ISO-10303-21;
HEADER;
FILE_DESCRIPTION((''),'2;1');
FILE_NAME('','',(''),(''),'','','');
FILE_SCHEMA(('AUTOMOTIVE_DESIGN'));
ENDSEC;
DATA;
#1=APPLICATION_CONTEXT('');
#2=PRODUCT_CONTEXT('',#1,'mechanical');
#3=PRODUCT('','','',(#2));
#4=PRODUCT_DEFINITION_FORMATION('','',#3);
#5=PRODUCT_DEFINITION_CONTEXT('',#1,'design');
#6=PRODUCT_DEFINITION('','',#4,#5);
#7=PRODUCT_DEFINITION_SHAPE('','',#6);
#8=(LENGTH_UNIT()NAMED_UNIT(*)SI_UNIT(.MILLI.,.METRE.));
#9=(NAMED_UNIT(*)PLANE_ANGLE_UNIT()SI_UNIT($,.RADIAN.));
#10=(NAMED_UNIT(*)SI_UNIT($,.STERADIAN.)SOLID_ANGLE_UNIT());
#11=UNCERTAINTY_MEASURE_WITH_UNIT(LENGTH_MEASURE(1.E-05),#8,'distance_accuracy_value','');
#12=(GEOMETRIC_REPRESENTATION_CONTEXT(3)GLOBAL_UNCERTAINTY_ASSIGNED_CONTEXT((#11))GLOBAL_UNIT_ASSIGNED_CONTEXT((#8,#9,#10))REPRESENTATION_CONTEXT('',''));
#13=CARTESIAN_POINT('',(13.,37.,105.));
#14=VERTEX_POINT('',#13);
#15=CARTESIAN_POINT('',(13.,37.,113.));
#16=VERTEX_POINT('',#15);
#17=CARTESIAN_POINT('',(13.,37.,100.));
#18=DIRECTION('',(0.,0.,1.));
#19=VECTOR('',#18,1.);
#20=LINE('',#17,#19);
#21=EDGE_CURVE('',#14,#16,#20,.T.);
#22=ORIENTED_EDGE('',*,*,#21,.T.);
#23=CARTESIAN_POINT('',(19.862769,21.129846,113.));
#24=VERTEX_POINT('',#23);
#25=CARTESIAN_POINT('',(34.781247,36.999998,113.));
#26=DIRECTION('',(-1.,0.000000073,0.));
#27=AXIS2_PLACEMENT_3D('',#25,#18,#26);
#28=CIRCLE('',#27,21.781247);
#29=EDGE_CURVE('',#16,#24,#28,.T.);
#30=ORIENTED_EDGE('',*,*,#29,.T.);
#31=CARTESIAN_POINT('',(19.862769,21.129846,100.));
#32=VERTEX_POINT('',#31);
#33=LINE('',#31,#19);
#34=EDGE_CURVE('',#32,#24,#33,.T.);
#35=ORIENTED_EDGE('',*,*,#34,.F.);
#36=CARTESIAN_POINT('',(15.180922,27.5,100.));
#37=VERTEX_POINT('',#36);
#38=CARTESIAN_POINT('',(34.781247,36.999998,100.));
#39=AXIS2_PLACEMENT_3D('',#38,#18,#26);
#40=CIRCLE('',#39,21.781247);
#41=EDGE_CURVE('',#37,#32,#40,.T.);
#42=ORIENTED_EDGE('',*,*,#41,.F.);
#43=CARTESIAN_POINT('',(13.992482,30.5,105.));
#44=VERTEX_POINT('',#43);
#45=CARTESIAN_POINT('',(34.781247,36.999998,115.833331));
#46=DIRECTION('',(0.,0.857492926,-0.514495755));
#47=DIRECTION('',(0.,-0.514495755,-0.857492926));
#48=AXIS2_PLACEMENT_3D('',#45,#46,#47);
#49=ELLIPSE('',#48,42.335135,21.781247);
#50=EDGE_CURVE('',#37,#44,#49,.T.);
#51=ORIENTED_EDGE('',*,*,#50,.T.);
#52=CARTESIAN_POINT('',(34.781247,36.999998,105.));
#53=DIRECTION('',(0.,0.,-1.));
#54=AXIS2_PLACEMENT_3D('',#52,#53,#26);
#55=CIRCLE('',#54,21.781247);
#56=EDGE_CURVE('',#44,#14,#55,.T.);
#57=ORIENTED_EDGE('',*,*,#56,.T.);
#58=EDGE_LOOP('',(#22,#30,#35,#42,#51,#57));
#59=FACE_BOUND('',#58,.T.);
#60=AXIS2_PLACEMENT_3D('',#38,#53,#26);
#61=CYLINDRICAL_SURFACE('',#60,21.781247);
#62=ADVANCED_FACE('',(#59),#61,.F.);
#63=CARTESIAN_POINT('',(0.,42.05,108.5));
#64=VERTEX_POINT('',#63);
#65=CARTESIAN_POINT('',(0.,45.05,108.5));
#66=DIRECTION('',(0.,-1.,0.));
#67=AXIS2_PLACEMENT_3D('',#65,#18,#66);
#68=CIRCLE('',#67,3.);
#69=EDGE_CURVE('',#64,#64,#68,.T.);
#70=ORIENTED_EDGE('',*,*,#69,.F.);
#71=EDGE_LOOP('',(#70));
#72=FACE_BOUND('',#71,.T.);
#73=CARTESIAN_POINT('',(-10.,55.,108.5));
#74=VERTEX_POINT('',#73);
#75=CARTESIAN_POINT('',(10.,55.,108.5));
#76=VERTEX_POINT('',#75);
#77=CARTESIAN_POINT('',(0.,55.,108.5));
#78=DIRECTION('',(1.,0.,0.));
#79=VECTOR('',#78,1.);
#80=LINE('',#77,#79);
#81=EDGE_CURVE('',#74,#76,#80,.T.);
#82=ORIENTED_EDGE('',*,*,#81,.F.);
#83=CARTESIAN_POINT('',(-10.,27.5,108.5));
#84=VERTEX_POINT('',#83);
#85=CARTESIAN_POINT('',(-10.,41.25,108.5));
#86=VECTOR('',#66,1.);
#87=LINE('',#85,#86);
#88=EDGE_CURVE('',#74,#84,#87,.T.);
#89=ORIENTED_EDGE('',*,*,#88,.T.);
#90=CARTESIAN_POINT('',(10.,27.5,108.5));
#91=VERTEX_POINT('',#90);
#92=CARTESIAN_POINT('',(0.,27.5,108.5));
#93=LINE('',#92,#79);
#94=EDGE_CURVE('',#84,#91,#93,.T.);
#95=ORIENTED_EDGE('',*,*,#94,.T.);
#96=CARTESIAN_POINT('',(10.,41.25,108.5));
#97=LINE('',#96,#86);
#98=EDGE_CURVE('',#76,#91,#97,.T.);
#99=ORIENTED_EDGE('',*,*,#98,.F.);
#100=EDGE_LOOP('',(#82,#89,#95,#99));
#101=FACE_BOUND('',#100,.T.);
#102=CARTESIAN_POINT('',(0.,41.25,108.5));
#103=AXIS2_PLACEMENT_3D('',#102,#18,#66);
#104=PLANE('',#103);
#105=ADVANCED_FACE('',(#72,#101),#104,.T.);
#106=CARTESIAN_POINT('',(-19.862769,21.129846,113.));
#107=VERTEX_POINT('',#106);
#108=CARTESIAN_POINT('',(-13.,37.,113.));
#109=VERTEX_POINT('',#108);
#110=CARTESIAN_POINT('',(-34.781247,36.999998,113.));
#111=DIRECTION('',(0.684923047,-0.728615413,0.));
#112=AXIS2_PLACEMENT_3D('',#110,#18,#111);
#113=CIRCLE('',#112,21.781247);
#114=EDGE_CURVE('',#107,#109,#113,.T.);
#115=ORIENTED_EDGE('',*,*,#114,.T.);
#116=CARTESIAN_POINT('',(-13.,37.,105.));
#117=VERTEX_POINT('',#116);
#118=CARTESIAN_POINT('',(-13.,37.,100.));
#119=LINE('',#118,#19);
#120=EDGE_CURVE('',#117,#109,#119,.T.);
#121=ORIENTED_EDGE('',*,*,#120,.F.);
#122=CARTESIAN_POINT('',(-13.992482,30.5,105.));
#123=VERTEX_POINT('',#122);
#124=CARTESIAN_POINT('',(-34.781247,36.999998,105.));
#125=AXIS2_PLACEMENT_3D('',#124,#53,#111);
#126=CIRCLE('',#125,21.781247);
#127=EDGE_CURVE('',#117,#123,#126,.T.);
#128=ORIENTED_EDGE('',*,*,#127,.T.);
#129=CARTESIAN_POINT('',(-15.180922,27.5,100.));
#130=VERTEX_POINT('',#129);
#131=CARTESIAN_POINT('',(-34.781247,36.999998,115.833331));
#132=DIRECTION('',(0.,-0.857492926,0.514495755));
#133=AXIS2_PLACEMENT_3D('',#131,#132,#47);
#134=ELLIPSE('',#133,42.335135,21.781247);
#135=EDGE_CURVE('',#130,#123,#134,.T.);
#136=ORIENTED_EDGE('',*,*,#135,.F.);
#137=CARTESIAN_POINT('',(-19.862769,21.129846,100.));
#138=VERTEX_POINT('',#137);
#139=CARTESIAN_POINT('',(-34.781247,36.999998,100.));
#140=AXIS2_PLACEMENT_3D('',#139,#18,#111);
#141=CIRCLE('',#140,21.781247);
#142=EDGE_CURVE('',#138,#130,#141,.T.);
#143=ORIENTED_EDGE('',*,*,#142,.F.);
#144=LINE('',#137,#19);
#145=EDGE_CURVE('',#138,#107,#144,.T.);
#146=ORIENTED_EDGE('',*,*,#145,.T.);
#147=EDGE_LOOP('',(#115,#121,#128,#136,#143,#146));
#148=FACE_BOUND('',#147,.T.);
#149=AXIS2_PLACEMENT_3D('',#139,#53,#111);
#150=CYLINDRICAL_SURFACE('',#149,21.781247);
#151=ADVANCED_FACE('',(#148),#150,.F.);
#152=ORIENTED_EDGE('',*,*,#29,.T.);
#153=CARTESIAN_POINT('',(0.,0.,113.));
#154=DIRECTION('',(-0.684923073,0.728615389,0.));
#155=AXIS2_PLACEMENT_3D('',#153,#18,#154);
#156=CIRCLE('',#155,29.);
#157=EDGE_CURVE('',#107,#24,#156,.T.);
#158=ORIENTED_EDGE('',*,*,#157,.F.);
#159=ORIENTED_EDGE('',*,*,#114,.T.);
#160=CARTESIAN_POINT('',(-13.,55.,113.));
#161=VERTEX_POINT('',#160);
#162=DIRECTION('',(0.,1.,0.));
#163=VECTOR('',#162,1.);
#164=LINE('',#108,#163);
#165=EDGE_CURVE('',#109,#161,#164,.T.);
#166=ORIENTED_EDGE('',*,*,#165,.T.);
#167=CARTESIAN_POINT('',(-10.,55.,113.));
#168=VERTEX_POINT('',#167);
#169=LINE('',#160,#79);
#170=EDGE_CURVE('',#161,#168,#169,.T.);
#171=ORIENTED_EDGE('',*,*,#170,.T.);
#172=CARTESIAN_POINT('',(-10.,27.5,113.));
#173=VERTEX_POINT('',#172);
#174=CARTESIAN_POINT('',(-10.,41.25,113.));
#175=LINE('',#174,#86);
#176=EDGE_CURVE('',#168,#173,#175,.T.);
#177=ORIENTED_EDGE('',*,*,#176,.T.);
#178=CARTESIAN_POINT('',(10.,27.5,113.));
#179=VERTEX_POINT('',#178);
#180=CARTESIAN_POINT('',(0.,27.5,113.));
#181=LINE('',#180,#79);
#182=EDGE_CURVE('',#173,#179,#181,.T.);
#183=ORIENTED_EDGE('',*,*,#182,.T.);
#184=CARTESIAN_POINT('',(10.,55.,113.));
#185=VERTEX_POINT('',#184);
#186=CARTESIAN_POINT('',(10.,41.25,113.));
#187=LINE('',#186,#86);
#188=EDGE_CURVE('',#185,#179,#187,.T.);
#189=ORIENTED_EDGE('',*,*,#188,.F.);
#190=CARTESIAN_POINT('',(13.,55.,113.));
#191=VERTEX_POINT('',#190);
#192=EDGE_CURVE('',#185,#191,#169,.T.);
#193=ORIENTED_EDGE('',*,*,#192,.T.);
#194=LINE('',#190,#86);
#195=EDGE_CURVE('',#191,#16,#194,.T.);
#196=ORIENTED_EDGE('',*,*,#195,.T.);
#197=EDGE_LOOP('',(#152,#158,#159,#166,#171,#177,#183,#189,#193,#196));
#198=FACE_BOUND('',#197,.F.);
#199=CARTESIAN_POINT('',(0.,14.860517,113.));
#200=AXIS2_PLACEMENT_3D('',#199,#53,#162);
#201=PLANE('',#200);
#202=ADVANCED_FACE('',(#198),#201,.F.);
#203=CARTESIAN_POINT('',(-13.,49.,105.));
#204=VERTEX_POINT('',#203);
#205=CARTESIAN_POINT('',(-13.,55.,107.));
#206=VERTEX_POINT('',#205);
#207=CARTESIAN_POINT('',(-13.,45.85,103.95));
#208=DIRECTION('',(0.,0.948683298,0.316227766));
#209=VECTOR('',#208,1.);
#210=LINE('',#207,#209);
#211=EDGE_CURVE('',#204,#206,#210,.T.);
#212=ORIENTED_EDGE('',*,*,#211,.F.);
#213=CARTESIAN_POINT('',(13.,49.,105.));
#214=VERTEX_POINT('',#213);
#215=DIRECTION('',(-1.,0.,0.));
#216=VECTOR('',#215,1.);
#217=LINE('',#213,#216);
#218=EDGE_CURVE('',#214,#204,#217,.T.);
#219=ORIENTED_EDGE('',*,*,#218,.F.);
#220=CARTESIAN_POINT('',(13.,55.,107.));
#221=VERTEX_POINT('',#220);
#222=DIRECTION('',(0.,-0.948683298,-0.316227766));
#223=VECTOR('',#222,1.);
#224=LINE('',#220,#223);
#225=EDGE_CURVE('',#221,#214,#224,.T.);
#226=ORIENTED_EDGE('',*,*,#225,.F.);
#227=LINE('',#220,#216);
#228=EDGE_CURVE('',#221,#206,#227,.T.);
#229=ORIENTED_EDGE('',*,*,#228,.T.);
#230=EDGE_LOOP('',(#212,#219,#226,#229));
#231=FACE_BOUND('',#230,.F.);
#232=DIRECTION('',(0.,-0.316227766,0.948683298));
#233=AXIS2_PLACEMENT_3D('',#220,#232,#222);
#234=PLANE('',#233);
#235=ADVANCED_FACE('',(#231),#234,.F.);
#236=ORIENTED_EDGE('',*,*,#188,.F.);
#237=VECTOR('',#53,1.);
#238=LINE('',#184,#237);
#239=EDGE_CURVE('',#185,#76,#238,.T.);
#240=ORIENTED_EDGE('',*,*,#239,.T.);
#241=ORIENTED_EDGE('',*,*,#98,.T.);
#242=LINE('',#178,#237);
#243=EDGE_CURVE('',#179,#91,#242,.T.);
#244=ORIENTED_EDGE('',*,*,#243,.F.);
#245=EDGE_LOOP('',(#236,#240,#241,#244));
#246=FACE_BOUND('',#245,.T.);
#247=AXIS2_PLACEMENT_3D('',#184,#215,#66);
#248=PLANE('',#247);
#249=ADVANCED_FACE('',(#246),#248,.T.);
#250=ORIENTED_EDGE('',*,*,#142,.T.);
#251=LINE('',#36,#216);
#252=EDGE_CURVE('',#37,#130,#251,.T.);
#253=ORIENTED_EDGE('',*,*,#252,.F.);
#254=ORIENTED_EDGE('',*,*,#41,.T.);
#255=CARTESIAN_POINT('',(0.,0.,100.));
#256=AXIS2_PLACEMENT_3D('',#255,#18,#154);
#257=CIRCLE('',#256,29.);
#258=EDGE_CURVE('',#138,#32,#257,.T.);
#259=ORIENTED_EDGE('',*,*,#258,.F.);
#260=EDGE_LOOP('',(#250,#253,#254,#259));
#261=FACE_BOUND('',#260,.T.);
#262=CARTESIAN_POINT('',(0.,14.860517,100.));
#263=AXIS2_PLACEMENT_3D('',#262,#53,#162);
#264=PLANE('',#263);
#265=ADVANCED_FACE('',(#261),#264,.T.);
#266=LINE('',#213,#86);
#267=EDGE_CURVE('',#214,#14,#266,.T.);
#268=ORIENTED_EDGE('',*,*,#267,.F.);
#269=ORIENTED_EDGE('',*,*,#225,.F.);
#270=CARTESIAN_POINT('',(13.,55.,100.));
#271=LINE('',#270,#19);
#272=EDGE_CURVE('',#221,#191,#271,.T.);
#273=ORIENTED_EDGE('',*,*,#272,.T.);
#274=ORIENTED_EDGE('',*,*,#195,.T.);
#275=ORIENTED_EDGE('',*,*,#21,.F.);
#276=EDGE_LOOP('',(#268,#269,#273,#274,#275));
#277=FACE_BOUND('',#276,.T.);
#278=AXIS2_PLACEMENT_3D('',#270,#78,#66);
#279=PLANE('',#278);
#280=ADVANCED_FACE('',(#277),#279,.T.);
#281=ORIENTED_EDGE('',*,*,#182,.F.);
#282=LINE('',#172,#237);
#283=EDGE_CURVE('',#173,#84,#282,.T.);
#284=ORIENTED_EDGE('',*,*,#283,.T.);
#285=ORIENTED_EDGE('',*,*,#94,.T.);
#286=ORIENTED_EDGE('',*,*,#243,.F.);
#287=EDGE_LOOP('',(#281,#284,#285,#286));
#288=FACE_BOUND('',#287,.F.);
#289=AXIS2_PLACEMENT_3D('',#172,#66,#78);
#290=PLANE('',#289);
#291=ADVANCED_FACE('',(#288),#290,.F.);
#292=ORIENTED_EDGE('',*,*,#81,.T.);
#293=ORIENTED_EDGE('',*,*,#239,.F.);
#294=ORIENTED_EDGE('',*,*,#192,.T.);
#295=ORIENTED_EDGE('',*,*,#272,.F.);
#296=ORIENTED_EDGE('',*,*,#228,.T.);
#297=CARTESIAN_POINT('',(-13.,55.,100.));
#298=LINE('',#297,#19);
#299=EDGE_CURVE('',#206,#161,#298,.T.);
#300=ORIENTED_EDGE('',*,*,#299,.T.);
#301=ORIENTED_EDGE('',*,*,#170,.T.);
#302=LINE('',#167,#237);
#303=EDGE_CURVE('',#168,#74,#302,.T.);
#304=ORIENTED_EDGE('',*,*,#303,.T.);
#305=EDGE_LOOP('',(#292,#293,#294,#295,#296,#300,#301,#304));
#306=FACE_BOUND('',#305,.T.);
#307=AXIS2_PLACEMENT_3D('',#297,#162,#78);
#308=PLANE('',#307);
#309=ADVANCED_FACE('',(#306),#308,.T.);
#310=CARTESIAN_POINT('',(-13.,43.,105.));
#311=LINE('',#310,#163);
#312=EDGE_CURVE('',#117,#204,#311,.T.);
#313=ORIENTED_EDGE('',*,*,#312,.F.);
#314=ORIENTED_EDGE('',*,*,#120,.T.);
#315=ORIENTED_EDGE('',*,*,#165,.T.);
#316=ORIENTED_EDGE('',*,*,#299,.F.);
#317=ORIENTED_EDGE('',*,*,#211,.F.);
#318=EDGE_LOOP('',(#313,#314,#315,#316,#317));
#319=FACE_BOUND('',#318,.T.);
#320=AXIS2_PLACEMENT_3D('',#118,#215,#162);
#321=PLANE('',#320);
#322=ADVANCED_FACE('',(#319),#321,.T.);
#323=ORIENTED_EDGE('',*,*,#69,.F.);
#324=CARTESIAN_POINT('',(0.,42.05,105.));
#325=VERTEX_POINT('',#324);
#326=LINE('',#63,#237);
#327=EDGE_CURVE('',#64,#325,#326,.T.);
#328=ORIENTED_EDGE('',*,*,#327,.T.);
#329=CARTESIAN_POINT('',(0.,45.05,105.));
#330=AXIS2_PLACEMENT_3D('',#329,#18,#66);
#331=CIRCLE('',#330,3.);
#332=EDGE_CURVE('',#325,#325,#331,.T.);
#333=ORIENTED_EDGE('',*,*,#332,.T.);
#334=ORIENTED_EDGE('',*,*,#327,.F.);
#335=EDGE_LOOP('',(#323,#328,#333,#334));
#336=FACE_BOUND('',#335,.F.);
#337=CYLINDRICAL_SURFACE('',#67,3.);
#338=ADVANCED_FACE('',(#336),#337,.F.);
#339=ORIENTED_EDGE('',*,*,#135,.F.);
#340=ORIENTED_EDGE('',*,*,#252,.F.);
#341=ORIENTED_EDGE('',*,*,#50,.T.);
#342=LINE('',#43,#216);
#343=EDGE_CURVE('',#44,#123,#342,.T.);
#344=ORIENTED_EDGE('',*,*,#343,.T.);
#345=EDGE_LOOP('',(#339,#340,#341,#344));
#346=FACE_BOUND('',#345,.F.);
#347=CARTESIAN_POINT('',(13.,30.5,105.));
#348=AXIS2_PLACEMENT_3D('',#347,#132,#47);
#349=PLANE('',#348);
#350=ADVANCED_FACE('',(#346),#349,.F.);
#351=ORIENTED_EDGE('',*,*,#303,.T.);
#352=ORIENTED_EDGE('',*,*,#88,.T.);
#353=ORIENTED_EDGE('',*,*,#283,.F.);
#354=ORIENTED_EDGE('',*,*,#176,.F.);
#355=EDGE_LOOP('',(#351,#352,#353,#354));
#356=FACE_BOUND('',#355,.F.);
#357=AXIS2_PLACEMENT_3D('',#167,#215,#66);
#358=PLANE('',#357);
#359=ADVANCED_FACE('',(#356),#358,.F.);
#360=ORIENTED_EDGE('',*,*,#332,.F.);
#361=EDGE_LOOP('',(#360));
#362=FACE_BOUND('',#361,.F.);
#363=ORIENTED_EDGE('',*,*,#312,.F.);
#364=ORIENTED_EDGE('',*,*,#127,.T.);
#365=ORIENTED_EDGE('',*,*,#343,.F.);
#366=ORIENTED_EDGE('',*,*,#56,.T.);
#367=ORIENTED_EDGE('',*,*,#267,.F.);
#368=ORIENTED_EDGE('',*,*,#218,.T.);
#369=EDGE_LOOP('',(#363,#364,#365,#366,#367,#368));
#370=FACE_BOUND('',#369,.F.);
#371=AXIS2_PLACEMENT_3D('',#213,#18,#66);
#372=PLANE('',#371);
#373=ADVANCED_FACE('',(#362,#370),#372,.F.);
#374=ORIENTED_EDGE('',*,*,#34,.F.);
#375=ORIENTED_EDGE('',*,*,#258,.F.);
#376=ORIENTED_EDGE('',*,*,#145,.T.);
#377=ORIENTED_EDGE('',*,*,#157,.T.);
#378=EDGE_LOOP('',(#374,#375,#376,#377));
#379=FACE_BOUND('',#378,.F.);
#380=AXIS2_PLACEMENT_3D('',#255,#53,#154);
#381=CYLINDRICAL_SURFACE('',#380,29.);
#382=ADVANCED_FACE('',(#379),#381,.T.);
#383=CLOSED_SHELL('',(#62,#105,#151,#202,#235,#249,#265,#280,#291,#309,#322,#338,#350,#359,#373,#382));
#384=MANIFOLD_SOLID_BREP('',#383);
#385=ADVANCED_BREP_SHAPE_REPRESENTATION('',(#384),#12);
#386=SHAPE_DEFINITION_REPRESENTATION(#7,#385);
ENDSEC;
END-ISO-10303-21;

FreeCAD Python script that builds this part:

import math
import FreeCAD as App
import Part
import Sketcher


def add_polygon(sketch, points):
    """Adds a closed chain of lines whose ends are joined by coincident constraints."""
    first, n = sketch.GeometryCount, len(points)
    for a, b in zip(points, points[1:] + points[:1]):
        sketch.addGeometry(Part.LineSegment(App.Vector(*a, 0), App.Vector(*b, 0)), False)
    for i in range(n):
        sketch.addConstraint(Sketcher.Constraint("Coincident", first + i, 2, first + (i + 1) % n, 1))

doc = App.newDocument("Part")
params = doc.addObject("Spreadsheet::Sheet", "Params")
for row, (alias, value) in enumerate([
    ("sketch1_radius", "29 mm"),
    ("sketch1_width", "26 mm"),
    ("sketch1_height", "18 mm"),
    ("pad1_length", "13 mm"),
    ("sketch2_width", "20 mm"),
    ("sketch2_height", "27.5 mm"),
    ("pocket1_length", "4.5 mm"),
    ("sketch3_diameter", "6 mm"),
    ("pocket2_length", "25 mm"),
    ("sketch4_height", "7 mm"),
    ("sketch4_width", "18.5 mm"),
    ("sketch4_width2", "27.5 mm"),
], start=1):
    params.set(f"A{row}", alias)
    params.set(f"B{row}", "=" + value)
    params.setAlias(f"B{row}", alias)

body = doc.addObject("PartDesign::Body", "Body")

sketch1 = doc.addObject("Sketcher::SketchObject", "Sketch")
body.addObject(sketch1)
sketch1.AttachmentSupport = (doc.XY_Plane, [""])
sketch1.MapMode = "FlatFace"
sketch1.AttachmentOffset = App.Placement(App.Vector(0, 0, 100), App.Rotation())
sketch1.addGeometry(Part.LineSegment(App.Vector(13, 55, 0), App.Vector(-13, 55, 0)), False)
sketch1.addGeometry(Part.LineSegment(App.Vector(-13, 55, 0), App.Vector(-13, 37, 0)), False)
sketch1.addGeometry(Part.ArcOfCircle(Part.Circle(App.Vector(-35, 37, 0), App.Vector(0, 0, 1), 22), math.radians(-47), math.radians(0)), False)
sketch1.addGeometry(Part.ArcOfCircle(Part.Circle(App.Vector(0, 0, 0), App.Vector(0, 0, 1), 29), math.radians(133), math.radians(407)), False)
sketch1.addGeometry(Part.ArcOfCircle(Part.Circle(App.Vector(35, 37, 0), App.Vector(0, 0, 1), 22), math.radians(180), math.radians(227)), False)
sketch1.addGeometry(Part.LineSegment(App.Vector(13, 37, 0), App.Vector(13, 55, 0)), False)
sketch1.addConstraint(Sketcher.Constraint("Coincident", 0, 2, 1, 1))
sketch1.addConstraint(Sketcher.Constraint("Tangent", 1, 2, 2, 2))
sketch1.addConstraint(Sketcher.Constraint("Tangent", 2, 1, 3, 1))
sketch1.addConstraint(Sketcher.Constraint("Tangent", 3, 2, 4, 2))
sketch1.addConstraint(Sketcher.Constraint("Tangent", 4, 1, 5, 1))
sketch1.addConstraint(Sketcher.Constraint("Coincident", 5, 2, 0, 1))
sketch1.addConstraint(Sketcher.Constraint("Horizontal", 0))
sketch1.addConstraint(Sketcher.Constraint("Vertical", 1))
sketch1.addConstraint(Sketcher.Constraint("Vertical", 5))
sketch1.addConstraint(Sketcher.Constraint("Coincident", 3, 3, -1, 1))
sketch1.addConstraint(Sketcher.Constraint("Equal", 2, 4))
sketch1.addConstraint(Sketcher.Constraint("Horizontal", 2, 3, 4, 3))
sketch1.addConstraint(Sketcher.Constraint("Radius", 3, 29.0))
sketch1.addConstraint(Sketcher.Constraint("DistanceX", 0, 2, 0, 1, 26.0))
sketch1.addConstraint(Sketcher.Constraint("DistanceY", 1, 2, 1, 1, 18.0))
sketch1.addConstraint(Sketcher.Constraint("DistanceY", -1, 1, 2, 3, 36.999998))
sketch1.setExpression("Constraints[12]", "Params.sketch1_radius")
sketch1.setExpression("Constraints[13]", "Params.sketch1_width")
sketch1.setExpression("Constraints[14]", "Params.sketch1_height")
pad1 = doc.addObject("PartDesign::Pad", "Pad")
body.addObject(pad1)
pad1.Profile = sketch1
pad1.setExpression("Length", "Params.pad1_length")

sketch2 = doc.addObject("Sketcher::SketchObject", "Sketch001")
body.addObject(sketch2)
sketch2.AttachmentSupport = (doc.XY_Plane, [""])
sketch2.MapMode = "FlatFace"
sketch2.AttachmentOffset = App.Placement(App.Vector(0, 0, 113), App.Rotation())
add_polygon(sketch2, [(10, 55), (-10, 55), (-10, 28), (10, 28)])
sketch2.addConstraint(Sketcher.Constraint("Horizontal", 0))
sketch2.addConstraint(Sketcher.Constraint("Vertical", 1))
sketch2.addConstraint(Sketcher.Constraint("Horizontal", 2))
sketch2.addConstraint(Sketcher.Constraint("Vertical", 3))
sketch2.addConstraint(Sketcher.Constraint("DistanceX", 0, 2, 0, 1, 20.0))
sketch2.addConstraint(Sketcher.Constraint("DistanceY", 1, 2, 1, 1, 27.5))
sketch2.addConstraint(Sketcher.Constraint("DistanceX", 0, 2, -1, 1, 10.0))
sketch2.addConstraint(Sketcher.Constraint("DistanceY", -1, 1, 0, 2, 55.0))
sketch2.setExpression("Constraints[8]", "Params.sketch2_width")
sketch2.setExpression("Constraints[9]", "Params.sketch2_height")
pocket1 = doc.addObject("PartDesign::Pocket", "Pocket")
body.addObject(pocket1)
pocket1.Profile = sketch2
pocket1.setExpression("Length", "Params.pocket1_length")

sketch3 = doc.addObject("Sketcher::SketchObject", "Sketch002")
body.addObject(sketch3)
sketch3.AttachmentSupport = (doc.XY_Plane, [""])
sketch3.MapMode = "FlatFace"
sketch3.AttachmentOffset = App.Placement(App.Vector(0, 0, 108.5), App.Rotation())
sketch3.addGeometry(Part.Circle(App.Vector(0, 45, 0), App.Vector(0, 0, 1), 3), False)
sketch3.addConstraint(Sketcher.Constraint("PointOnObject", 0, 3, -2))
sketch3.addConstraint(Sketcher.Constraint("Diameter", 0, 6.0))
sketch3.addConstraint(Sketcher.Constraint("DistanceY", -1, 1, 0, 3, 45.05))
sketch3.setExpression("Constraints[1]", "Params.sketch3_diameter")
pocket2 = doc.addObject("PartDesign::Pocket", "Pocket001")
body.addObject(pocket2)
pocket2.Profile = sketch3
pocket2.setExpression("Length", "Params.pocket2_length")

sketch4 = doc.addObject("Sketcher::SketchObject", "Sketch003")
body.addObject(sketch4)
sketch4.AttachmentSupport = (doc.YZ_Plane, [""])
sketch4.MapMode = "FlatFace"
sketch4.AttachmentOffset = App.Placement(App.Vector(0, 0, 13), App.Rotation())
add_polygon(sketch4, [(55, 107), (49, 105), (30, 105), (28, 100), (55, 100)])
sketch4.addConstraint(Sketcher.Constraint("Horizontal", 1))
sketch4.addConstraint(Sketcher.Constraint("Horizontal", 3))
sketch4.addConstraint(Sketcher.Constraint("Vertical", 4))
sketch4.addConstraint(Sketcher.Constraint("DistanceY", 4, 1, 4, 2, 7.0))
sketch4.addConstraint(Sketcher.Constraint("DistanceX", 1, 2, 1, 1, 18.5))
sketch4.addConstraint(Sketcher.Constraint("DistanceX", 3, 1, 3, 2, 27.5))
sketch4.addConstraint(Sketcher.Constraint("DistanceX", -1, 1, 0, 2, 49.0))
sketch4.addConstraint(Sketcher.Constraint("DistanceY", -1, 1, 0, 2, 105.0))
sketch4.addConstraint(Sketcher.Constraint("DistanceY", -1, 1, 2, 2, 100.0))
sketch4.addConstraint(Sketcher.Constraint("DistanceX", -1, 1, 3, 2, 55.0))
sketch4.setExpression("Constraints[8]", "Params.sketch4_height")
sketch4.setExpression("Constraints[9]", "Params.sketch4_width")
sketch4.setExpression("Constraints[10]", "Params.sketch4_width2")
pocket3 = doc.addObject("PartDesign::Pocket", "Pocket002")
body.addObject(pocket3)
pocket3.Profile = sketch4
pocket3.Type = "ThroughAll"
pocket3.Midplane = True

doc.recompute()
